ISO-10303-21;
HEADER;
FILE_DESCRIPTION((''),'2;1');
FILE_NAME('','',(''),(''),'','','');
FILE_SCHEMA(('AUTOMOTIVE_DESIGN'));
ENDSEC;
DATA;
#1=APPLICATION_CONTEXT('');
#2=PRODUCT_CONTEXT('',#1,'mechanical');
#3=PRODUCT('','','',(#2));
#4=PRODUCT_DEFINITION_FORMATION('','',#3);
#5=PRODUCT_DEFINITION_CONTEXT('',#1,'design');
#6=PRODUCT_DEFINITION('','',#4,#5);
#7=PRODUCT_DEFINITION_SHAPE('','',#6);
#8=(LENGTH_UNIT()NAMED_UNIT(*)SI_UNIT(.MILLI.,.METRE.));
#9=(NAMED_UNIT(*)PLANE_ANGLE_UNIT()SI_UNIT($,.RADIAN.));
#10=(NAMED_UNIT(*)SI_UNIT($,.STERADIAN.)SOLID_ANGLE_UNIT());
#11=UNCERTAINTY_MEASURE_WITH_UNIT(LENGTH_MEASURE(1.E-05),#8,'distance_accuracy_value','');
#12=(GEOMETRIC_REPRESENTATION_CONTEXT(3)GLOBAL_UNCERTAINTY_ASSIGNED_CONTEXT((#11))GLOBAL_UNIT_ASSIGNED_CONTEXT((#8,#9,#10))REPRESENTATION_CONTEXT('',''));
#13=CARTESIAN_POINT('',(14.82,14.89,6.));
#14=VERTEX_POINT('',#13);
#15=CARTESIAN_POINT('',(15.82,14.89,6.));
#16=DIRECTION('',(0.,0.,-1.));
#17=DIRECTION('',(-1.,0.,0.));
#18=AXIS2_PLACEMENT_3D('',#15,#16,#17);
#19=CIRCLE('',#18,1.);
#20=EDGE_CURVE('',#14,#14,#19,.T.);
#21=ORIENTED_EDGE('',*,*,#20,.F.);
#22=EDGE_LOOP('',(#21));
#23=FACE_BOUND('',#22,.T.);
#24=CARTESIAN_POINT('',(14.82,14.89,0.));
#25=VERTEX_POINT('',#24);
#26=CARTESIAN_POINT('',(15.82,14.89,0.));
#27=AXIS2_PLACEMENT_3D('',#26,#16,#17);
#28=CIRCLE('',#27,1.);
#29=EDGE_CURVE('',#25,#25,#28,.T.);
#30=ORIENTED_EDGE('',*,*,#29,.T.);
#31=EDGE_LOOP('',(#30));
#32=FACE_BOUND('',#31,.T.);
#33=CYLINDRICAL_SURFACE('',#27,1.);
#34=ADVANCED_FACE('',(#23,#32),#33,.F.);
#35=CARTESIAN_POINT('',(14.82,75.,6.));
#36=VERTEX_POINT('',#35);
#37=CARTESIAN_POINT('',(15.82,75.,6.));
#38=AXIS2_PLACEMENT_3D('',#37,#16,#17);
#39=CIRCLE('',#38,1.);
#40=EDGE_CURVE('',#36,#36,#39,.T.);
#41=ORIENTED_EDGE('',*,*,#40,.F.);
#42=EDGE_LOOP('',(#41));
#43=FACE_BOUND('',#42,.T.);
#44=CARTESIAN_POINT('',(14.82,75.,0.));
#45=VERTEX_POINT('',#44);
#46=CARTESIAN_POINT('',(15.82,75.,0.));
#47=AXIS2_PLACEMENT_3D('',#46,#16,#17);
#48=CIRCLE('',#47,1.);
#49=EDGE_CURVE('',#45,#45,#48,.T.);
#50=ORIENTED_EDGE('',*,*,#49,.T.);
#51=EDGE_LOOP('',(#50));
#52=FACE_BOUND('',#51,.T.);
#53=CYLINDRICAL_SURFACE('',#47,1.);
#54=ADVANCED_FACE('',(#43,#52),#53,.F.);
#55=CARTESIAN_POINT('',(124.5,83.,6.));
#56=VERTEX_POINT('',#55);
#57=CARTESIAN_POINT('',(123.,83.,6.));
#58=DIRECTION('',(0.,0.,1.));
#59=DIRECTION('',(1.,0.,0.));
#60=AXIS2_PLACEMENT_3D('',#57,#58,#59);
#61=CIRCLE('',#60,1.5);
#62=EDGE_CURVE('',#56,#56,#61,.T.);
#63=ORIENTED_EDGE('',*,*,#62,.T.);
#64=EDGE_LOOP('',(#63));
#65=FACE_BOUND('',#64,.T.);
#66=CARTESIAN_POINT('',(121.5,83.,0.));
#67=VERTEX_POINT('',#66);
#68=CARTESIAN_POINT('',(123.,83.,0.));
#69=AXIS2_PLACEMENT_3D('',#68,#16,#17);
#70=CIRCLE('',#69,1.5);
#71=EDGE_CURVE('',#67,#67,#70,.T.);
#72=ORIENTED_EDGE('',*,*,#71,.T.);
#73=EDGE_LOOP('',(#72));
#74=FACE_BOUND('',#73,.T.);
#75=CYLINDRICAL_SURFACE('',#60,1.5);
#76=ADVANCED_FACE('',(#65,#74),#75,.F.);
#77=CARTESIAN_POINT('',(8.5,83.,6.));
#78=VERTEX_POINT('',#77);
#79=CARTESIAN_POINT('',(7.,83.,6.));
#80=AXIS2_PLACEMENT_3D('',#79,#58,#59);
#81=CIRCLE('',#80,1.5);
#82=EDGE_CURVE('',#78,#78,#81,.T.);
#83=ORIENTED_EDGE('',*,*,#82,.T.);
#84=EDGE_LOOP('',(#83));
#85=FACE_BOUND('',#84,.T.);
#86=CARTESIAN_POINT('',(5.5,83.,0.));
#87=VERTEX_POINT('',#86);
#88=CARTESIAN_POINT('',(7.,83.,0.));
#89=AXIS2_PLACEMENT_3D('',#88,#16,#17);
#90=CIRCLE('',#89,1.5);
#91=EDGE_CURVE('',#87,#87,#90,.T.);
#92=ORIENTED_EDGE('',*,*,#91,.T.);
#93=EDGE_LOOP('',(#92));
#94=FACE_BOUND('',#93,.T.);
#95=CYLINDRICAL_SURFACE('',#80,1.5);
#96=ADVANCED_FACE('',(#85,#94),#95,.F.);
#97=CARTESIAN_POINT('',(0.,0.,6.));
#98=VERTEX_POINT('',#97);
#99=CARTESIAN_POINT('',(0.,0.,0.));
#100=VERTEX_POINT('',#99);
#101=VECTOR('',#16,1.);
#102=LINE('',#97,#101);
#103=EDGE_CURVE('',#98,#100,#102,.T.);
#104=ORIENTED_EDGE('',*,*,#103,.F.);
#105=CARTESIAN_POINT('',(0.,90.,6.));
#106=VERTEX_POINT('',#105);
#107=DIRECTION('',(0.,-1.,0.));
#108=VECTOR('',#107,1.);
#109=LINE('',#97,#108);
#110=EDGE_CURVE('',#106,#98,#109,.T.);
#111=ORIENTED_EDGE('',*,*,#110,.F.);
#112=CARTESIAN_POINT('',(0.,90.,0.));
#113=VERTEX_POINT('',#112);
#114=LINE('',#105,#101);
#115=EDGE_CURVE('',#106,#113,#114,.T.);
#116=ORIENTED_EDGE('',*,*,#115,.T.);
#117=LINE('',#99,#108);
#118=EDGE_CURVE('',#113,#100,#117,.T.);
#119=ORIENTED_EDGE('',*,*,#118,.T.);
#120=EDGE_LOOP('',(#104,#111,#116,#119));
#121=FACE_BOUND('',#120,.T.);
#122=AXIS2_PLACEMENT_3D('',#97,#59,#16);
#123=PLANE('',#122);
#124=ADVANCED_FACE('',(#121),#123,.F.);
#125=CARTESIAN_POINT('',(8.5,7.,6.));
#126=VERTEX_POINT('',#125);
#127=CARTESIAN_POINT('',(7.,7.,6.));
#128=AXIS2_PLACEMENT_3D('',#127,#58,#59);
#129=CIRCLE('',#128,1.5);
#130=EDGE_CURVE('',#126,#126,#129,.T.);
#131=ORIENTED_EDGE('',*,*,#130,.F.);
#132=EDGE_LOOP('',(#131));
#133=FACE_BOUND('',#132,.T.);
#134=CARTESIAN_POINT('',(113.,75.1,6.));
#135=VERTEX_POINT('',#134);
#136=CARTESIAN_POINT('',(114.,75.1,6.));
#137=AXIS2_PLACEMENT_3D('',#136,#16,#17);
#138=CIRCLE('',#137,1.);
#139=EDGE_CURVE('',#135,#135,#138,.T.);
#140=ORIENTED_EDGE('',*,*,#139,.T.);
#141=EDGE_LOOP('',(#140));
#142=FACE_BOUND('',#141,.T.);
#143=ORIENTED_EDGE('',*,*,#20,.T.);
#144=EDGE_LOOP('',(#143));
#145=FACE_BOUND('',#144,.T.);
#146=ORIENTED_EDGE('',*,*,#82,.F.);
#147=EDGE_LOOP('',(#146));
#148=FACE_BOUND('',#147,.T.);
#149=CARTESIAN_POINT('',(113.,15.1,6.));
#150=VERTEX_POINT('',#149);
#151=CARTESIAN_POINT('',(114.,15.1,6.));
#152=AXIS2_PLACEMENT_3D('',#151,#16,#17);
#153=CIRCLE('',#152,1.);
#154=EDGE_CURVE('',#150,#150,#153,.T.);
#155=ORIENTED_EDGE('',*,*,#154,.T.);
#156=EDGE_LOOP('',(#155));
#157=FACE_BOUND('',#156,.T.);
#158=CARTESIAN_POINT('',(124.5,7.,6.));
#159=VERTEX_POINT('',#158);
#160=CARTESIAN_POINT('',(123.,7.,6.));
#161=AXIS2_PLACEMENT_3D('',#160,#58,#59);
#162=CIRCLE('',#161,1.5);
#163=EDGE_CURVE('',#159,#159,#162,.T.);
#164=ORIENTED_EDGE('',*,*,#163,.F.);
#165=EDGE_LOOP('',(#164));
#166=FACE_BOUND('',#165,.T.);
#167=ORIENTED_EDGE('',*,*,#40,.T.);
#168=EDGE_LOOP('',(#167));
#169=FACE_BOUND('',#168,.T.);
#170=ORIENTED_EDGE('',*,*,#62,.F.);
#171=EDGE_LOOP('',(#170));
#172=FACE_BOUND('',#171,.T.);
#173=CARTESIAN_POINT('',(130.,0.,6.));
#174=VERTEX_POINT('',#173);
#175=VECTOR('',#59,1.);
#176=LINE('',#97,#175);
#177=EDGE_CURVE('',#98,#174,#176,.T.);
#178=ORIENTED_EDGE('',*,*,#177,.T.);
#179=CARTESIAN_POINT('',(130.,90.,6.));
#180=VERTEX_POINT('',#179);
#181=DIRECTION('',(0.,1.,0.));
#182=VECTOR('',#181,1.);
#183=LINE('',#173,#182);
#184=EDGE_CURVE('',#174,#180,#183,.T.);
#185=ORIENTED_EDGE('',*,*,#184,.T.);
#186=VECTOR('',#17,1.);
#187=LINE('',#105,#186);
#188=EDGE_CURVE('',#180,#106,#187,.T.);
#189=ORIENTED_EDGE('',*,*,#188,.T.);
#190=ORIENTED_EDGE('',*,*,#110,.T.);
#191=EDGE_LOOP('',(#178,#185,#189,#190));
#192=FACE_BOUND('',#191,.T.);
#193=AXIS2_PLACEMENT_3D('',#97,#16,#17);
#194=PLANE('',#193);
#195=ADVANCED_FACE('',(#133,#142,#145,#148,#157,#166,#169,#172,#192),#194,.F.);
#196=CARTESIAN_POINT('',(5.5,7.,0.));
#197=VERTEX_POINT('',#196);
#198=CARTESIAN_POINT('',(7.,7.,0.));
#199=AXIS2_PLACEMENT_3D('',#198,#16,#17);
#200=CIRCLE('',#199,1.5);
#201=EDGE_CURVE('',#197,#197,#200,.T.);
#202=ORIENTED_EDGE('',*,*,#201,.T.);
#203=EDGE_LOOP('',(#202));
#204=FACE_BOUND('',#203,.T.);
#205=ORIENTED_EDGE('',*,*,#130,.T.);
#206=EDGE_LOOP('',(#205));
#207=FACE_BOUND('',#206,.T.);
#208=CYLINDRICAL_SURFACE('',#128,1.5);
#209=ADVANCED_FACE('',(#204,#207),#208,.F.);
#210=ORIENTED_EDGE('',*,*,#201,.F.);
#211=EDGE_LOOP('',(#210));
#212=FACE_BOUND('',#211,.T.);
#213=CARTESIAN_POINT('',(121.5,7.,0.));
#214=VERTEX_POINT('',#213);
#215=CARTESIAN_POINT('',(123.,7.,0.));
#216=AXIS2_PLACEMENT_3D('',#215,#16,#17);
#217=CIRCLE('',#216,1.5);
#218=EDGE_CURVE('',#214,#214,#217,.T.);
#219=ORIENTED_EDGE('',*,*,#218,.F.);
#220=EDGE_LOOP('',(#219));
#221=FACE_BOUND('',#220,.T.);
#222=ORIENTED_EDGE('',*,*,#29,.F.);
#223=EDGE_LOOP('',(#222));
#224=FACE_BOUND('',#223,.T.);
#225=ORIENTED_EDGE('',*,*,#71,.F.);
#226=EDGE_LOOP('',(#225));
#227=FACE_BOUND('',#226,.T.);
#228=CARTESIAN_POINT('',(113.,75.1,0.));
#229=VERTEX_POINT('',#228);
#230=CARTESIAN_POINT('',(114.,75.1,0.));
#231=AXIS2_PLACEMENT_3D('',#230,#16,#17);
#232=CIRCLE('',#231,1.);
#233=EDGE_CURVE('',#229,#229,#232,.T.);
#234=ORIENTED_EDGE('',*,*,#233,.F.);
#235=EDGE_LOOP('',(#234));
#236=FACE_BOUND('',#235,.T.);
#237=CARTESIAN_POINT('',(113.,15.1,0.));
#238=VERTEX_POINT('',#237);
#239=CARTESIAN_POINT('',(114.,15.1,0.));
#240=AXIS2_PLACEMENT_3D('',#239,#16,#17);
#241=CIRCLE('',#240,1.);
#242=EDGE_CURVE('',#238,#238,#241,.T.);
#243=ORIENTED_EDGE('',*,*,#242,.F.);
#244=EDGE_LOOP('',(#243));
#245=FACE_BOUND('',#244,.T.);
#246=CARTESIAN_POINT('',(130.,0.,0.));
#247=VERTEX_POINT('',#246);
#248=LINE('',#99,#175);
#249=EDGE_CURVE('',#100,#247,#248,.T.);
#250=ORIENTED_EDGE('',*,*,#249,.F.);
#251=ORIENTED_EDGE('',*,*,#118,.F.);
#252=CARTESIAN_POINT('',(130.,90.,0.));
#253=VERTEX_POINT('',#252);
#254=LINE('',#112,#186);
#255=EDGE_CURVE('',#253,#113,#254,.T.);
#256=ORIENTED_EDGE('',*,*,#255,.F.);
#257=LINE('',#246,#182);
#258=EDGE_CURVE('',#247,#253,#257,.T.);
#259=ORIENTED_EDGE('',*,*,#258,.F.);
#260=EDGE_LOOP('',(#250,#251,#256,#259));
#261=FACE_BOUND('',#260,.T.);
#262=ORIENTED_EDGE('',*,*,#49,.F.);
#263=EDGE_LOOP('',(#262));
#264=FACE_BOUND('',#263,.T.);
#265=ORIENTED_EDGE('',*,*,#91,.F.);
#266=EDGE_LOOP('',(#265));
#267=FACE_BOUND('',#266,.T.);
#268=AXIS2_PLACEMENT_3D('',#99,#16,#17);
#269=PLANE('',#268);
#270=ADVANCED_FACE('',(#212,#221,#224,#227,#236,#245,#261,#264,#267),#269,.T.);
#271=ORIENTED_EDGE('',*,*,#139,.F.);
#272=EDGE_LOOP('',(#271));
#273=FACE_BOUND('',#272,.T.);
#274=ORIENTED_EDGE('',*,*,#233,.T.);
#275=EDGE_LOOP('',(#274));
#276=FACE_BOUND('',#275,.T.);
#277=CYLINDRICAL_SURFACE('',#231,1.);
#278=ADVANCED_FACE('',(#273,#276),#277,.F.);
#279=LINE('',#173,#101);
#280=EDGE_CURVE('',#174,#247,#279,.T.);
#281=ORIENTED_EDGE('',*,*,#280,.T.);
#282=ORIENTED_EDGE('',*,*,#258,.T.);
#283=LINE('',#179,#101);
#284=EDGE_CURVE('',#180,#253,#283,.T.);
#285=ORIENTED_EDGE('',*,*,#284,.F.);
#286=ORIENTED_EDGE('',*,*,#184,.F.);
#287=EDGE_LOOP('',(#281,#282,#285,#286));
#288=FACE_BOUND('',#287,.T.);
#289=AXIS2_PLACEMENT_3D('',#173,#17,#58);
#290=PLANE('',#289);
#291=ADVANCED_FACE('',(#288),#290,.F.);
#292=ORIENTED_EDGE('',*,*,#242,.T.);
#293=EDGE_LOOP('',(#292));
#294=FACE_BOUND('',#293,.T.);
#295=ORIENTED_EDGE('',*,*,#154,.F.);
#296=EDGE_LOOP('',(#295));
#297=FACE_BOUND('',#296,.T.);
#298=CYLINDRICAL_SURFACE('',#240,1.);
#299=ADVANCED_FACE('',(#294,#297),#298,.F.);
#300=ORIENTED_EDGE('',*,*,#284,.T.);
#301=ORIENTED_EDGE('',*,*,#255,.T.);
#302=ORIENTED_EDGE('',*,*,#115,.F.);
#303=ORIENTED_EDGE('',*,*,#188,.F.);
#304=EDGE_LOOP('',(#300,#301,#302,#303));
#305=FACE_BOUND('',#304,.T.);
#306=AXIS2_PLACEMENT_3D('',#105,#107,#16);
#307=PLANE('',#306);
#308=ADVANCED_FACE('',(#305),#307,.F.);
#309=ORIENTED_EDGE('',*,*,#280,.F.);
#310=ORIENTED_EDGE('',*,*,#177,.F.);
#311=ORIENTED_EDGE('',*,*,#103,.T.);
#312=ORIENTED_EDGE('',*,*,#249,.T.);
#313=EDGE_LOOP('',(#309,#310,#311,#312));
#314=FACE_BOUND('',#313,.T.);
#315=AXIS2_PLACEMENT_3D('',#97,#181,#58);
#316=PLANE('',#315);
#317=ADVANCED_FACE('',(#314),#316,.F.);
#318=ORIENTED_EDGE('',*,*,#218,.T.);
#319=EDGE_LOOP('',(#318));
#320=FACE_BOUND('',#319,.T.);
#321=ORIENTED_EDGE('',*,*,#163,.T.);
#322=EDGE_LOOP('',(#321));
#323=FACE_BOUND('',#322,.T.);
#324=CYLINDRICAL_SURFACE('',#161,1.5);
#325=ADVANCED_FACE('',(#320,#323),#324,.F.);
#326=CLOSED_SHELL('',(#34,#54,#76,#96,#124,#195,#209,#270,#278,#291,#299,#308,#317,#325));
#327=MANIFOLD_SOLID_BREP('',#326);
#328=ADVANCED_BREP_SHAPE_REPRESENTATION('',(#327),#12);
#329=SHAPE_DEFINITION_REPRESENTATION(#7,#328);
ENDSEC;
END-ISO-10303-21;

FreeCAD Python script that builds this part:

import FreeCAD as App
import Part
import Sketcher
Q = App.Units.Quantity


def add_polygon(sketch, points):
    """Adds a closed chain of lines whose ends are joined by coincident constraints."""
    first, n = sketch.GeometryCount, len(points)
    for a, b in zip(points, points[1:] + points[:1]):
        sketch.addGeometry(Part.LineSegment(App.Vector(*a, 0), App.Vector(*b, 0)), False)
    for i in range(n):
        sketch.addConstraint(Sketcher.Constraint("Coincident", first + i, 2, first + (i + 1) % n, 1))

doc = App.newDocument("Part")
body = doc.addObject("PartDesign::Body", "Body")

# Sketch on XY plane
sketch1 = body.newObject("Sketcher::SketchObject", "Sketch")
sketch1.AttachmentSupport = (doc.getObject("XY_Plane"), [""])
sketch1.MapMode = "FlatFace"
add_polygon(sketch1, [(0, 90), (0, 0), (130, 0), (130, 90)])  # lines 0-3
sketch1.addConstraint(Sketcher.Constraint("Vertical", 0))
sketch1.addConstraint(Sketcher.Constraint("Horizontal", 1))
sketch1.addConstraint(Sketcher.Constraint("Vertical", 2))
sketch1.addConstraint(Sketcher.Constraint("Horizontal", 3))
sketch1.addConstraint(Sketcher.Constraint("Coincident", 0, 2, -1, 1))
sketch1.addConstraint(Sketcher.Constraint("DistanceX", 1, 1, 1, 2, Q("130 mm")))
sketch1.addConstraint(Sketcher.Constraint("DistanceY", 0, 2, 0, 1, Q("90 mm")))
pad1 = body.newObject("PartDesign::Pad", "Pad")
pad1.Profile = sketch1
pad1.Length = 6

# Sketch on XY plane
sketch2 = body.newObject("Sketcher::SketchObject", "Sketch001")
sketch2.AttachmentSupport = (doc.getObject("XY_Plane"), [""])
sketch2.MapMode = "FlatFace"
sketch2.AttachmentOffset = App.Placement(App.Vector(0, 0, 6), App.Rotation())
sketch2.addGeometry(Part.Circle(App.Vector(123, 83, 0), App.Vector(0, 0, 1), 1.5), False)
sketch2.addGeometry(Part.Circle(App.Vector(123, 7, 0), App.Vector(0, 0, 1), 1.5), False)
sketch2.addGeometry(Part.Circle(App.Vector(7, 7, 0), App.Vector(0, 0, 1), 1.5), False)
sketch2.addGeometry(Part.Circle(App.Vector(7, 83, 0), App.Vector(0, 0, 1), 1.5), False)
sketch2.addConstraint(Sketcher.Constraint("Equal", 0, 1))
sketch2.addConstraint(Sketcher.Constraint("Equal", 1, 2))
sketch2.addConstraint(Sketcher.Constraint("Equal", 2, 3))
sketch2.addConstraint(Sketcher.Constraint("Horizontal", 1, 3, 2, 3))
sketch2.addConstraint(Sketcher.Constraint("Horizontal", 0, 3, 3, 3))
sketch2.addConstraint(Sketcher.Constraint("Vertical", 0, 3, 1, 3))
sketch2.addConstraint(Sketcher.Constraint("Vertical", 2, 3, 3, 3))
sketch2.addConstraint(Sketcher.Constraint("Diameter", 0, Q("3 mm")))
sketch2.addConstraint(Sketcher.Constraint("DistanceX", -1, 1, 0, 3, Q("123 mm")))
sketch2.addConstraint(Sketcher.Constraint("DistanceY", -1, 1, 0, 3, Q("83 mm")))
sketch2.addConstraint(Sketcher.Constraint("DistanceY", -1, 1, 1, 3, Q("7 mm")))
sketch2.addConstraint(Sketcher.Constraint("DistanceX", -1, 1, 2, 3, Q("7 mm")))
doc.recompute()
hole = body.newObject("PartDesign::Hole", "Hole")
hole.Profile = sketch2
hole.ThreadType = "None"
hole.Diameter = 3
hole.DepthType = "ThroughAll"

# Sketch on XY plane
sketch3 = body.newObject("Sketcher::SketchObject", "Sketch002")
sketch3.AttachmentSupport = (doc.getObject("XY_Plane"), [""])
sketch3.MapMode = "FlatFace"
sketch3.addGeometry(Part.Circle(App.Vector(114, 75.1, 0), App.Vector(0, 0, 1), 1), False)
sketch3.addGeometry(Part.Circle(App.Vector(114, 15.1, 0), App.Vector(0, 0, 1), 1), False)
sketch3.addGeometry(Part.Circle(App.Vector(15.8, 14.9, 0), App.Vector(0, 0, 1), 1), False)
sketch3.addGeometry(Part.Circle(App.Vector(15.8, 75, 0), App.Vector(0, 0, 1), 1), False)
sketch3.addConstraint(Sketcher.Constraint("Equal", 0, 1))
sketch3.addConstraint(Sketcher.Constraint("Equal", 1, 2))
sketch3.addConstraint(Sketcher.Constraint("Equal", 2, 3))
sketch3.addConstraint(Sketcher.Constraint("Vertical", 0, 3, 1, 3))
sketch3.addConstraint(Sketcher.Constraint("Vertical", 2, 3, 3, 3))
sketch3.addConstraint(Sketcher.Constraint("Diameter", 0, Q("2 mm")))
sketch3.addConstraint(Sketcher.Constraint("DistanceX", -1, 1, 0, 3, Q("114 mm")))
sketch3.addConstraint(Sketcher.Constraint("DistanceY", -1, 1, 3, 3, Q("75 mm")))
sketch3.addConstraint(Sketcher.Constraint("DistanceY", 1, 3, 0, 3, Q("60 mm")))
sketch3.addConstraint(Sketcher.Constraint("DistanceY", -1, 1, 0, 3, Q("75.1 mm")))
sketch3.addConstraint(Sketcher.Constraint("DistanceX", -1, 1, 2, 3, Q("15.82 mm")))
sketch3.addConstraint(Sketcher.Constraint("DistanceY", -1, 1, 2, 3, Q("14.89 mm")))
doc.recompute()
hole2 = body.newObject("PartDesign::Hole", "Hole001")
hole2.Profile = sketch3
hole2.ThreadType = "None"
hole2.Diameter = 2
hole2.DepthType = "ThroughAll"
hole2.Reversed = True

doc.recompute()
